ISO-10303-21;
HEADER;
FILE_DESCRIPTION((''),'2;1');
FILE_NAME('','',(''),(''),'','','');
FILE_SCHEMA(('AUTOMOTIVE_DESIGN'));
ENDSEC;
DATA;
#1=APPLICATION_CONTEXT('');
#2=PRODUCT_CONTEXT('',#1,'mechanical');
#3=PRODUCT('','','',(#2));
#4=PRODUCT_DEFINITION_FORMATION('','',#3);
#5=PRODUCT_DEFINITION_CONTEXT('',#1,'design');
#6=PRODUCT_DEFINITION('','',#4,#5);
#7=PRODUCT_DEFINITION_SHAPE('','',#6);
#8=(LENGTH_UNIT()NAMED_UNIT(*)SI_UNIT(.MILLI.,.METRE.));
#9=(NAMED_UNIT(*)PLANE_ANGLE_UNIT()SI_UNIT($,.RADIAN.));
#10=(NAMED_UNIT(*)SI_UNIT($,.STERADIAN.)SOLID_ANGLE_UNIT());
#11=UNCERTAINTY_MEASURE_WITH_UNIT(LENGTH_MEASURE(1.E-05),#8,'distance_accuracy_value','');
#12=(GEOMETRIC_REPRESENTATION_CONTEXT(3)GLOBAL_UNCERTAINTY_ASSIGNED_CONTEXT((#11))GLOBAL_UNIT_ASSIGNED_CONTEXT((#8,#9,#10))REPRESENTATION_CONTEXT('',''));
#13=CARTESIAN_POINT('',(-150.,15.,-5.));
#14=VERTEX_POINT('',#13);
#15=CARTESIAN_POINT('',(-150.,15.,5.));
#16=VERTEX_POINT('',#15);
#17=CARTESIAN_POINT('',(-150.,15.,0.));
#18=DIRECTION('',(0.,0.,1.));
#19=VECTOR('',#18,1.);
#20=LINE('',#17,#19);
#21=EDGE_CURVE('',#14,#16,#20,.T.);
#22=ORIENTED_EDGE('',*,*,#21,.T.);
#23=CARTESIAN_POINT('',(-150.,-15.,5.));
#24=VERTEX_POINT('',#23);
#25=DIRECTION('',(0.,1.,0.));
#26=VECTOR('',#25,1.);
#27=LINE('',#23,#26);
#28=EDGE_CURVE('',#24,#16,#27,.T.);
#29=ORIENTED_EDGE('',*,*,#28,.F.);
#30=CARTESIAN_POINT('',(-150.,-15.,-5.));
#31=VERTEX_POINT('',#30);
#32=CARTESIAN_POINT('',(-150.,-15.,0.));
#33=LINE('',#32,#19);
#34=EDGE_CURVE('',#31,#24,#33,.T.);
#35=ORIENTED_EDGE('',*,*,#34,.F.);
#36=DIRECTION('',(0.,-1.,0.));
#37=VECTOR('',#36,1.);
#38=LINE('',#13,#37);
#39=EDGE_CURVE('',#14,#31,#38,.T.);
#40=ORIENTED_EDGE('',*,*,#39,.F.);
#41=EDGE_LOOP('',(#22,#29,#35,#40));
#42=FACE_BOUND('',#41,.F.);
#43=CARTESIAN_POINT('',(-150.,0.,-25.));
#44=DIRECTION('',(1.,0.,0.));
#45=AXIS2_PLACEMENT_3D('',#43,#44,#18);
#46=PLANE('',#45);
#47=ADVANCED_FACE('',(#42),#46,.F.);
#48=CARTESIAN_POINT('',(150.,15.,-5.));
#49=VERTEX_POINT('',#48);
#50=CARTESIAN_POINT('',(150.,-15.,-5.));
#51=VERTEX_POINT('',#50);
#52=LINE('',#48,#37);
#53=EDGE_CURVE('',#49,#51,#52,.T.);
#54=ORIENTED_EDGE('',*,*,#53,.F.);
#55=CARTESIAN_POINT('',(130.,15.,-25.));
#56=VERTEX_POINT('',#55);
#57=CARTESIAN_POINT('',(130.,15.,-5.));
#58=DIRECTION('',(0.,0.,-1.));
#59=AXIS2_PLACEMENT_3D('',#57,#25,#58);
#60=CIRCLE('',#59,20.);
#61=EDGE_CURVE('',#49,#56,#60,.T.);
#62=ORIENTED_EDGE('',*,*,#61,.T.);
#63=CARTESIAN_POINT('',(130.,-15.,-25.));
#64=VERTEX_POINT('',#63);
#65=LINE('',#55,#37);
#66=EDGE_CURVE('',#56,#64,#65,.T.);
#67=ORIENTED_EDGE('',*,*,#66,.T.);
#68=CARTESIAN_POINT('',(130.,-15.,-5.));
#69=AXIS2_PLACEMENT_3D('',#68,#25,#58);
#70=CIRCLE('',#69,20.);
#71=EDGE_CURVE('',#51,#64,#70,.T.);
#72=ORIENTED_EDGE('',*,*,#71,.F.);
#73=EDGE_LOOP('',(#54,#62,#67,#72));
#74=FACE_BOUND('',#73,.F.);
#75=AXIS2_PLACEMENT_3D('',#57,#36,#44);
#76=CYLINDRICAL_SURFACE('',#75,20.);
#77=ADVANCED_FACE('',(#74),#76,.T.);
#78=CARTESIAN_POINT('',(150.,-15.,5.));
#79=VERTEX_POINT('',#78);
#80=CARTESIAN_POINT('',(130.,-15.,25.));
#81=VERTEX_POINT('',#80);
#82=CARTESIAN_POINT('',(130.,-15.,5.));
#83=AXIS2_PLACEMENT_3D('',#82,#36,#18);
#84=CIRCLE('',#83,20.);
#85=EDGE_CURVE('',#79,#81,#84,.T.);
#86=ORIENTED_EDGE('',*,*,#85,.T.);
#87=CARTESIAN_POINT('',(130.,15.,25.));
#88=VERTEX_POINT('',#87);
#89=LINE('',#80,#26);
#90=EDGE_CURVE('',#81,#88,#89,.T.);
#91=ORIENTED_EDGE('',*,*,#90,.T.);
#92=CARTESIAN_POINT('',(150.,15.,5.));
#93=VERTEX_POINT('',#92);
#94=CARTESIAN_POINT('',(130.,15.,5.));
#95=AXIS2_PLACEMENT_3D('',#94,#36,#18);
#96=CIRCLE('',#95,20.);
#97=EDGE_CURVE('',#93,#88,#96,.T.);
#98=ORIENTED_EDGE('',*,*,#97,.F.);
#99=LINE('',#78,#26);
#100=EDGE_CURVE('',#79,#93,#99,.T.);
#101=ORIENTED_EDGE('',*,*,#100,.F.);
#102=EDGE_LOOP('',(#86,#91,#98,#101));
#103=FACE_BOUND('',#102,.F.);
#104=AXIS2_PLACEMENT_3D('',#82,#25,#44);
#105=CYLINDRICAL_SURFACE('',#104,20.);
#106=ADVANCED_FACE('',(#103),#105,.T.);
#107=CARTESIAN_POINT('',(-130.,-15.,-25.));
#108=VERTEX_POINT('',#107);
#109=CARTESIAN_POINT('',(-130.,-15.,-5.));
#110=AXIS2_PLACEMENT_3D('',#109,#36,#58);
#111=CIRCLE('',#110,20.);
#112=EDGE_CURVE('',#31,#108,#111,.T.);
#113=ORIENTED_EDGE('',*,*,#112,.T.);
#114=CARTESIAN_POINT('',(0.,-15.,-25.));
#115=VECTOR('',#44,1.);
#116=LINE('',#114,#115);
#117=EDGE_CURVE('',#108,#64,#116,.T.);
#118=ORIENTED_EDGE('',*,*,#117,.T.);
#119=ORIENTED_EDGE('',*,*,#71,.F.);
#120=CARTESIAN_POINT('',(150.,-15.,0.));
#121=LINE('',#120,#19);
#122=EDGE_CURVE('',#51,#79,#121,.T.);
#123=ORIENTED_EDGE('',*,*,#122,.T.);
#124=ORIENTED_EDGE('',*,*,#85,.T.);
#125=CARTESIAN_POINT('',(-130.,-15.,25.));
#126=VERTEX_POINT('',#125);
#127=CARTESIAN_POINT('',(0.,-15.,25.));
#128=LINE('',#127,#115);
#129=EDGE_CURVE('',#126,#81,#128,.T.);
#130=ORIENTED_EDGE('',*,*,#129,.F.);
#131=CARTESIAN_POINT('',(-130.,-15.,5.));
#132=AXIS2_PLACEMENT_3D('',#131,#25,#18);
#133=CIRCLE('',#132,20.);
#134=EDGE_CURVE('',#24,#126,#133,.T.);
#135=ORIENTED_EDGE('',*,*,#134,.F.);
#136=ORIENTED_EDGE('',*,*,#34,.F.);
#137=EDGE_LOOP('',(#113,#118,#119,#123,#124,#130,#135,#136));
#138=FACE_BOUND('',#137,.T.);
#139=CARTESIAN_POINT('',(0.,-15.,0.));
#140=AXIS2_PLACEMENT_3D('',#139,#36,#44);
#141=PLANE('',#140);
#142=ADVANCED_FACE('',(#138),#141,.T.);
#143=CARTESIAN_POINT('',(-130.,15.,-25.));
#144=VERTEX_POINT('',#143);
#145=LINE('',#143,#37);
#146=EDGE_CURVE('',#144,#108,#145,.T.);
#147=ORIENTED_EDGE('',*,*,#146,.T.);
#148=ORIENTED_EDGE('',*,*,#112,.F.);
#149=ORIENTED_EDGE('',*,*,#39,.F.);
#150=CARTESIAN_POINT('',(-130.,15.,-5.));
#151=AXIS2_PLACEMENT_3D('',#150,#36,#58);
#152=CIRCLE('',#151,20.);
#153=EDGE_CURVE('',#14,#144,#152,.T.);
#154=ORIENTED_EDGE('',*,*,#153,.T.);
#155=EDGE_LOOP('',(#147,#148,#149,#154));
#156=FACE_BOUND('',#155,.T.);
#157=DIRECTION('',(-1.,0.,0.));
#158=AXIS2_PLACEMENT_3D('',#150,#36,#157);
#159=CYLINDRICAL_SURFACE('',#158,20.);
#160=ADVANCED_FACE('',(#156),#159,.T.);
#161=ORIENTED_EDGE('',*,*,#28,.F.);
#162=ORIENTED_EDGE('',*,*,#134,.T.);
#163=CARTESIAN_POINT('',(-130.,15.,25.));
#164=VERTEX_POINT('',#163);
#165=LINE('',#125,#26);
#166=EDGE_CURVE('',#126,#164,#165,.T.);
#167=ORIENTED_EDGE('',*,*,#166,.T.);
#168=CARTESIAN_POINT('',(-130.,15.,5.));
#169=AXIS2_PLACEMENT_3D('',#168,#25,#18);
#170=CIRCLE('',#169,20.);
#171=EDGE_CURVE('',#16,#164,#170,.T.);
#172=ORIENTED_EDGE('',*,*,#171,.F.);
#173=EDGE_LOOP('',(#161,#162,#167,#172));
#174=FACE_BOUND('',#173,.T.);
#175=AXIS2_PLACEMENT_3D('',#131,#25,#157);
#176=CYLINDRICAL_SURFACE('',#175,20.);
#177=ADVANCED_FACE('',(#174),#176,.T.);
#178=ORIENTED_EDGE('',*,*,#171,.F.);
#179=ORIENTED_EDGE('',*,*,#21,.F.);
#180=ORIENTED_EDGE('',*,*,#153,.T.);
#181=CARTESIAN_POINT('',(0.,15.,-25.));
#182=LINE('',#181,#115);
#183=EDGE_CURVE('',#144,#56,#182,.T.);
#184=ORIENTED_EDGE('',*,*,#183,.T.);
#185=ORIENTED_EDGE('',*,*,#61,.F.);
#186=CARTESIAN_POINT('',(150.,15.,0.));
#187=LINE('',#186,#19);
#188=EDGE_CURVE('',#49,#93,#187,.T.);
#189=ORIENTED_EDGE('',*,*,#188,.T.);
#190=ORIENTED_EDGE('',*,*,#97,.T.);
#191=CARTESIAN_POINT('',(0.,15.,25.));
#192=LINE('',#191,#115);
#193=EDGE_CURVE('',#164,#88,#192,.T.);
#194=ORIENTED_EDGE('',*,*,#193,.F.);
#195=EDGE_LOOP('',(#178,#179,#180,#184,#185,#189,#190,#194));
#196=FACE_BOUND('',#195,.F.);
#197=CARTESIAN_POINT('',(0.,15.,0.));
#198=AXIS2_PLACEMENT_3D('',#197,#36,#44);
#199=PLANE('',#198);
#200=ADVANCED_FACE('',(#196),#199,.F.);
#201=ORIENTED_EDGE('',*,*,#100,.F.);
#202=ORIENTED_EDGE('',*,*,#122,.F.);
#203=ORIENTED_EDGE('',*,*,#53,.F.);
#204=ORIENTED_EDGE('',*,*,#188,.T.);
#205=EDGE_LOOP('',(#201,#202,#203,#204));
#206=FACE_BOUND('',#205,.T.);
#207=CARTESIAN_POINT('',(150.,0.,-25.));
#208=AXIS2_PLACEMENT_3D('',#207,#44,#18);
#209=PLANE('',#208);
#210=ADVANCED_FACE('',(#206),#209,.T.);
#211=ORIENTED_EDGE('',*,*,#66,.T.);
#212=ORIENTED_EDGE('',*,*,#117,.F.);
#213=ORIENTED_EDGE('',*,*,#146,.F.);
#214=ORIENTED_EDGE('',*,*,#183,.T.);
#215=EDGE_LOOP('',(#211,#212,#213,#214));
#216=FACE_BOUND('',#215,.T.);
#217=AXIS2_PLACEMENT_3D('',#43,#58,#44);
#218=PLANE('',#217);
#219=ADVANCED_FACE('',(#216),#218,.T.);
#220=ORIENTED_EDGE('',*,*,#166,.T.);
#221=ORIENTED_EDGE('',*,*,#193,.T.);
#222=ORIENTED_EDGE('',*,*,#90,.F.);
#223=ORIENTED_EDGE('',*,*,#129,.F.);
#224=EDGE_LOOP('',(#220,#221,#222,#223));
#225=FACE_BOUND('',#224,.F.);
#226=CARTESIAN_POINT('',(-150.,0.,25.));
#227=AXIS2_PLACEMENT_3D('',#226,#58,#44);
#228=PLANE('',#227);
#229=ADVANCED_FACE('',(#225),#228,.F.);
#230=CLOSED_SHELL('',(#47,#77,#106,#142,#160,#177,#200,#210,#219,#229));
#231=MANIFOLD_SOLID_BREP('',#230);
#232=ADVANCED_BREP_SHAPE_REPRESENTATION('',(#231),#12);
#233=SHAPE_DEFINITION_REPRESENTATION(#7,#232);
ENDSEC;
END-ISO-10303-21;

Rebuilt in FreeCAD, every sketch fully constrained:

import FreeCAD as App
import Part
import Sketcher


def edges_at(feature, points):
    """Names of the edges that pass closest to the given points."""
    edges = feature.Shape.Edges
    near = lambda p: min(range(len(edges)), key=lambda i: edges[i].distToShape(Part.Vertex(*p))[0])
    return sorted({f"Edge{near(p) + 1}" for p in points})

doc = App.newDocument("Part")
body = doc.addObject("PartDesign::Body", "Body")

sketch1 = body.newObject("Sketcher::SketchObject", "Sketch")
sketch1.AttachmentSupport = (doc.getObject("XZ_Plane"), [""])
sketch1.MapMode = "FlatFace"
sketch1.addGeometry(Part.LineSegment(App.Vector(-150, 25, 0), App.Vector(-150, -25, 0)), False)
sketch1.addGeometry(Part.LineSegment(App.Vector(-150, -25, 0), App.Vector(150, -25, 0)), False)
sketch1.addGeometry(Part.LineSegment(App.Vector(150, -25, 0), App.Vector(150, 25, 0)), False)
sketch1.addGeometry(Part.LineSegment(App.Vector(150, 25, 0), App.Vector(-150, 25, 0)), False)
sketch1.addConstraint(Sketcher.Constraint("Coincident", 0, 2, 1, 1))
sketch1.addConstraint(Sketcher.Constraint("Coincident", 1, 2, 2, 1))
sketch1.addConstraint(Sketcher.Constraint("Coincident", 2, 2, 3, 1))
sketch1.addConstraint(Sketcher.Constraint("Coincident", 3, 2, 0, 1))
sketch1.addConstraint(Sketcher.Constraint("Vertical", 0))
sketch1.addConstraint(Sketcher.Constraint("Horizontal", 1))
sketch1.addConstraint(Sketcher.Constraint("Vertical", 2))
sketch1.addConstraint(Sketcher.Constraint("Horizontal", 3))
sketch1.addConstraint(Sketcher.Constraint("Symmetric", 0, 2, 2, 2, -1, 1))
sketch1.addConstraint(Sketcher.Constraint("DistanceX", 1, 1, 1, 2, 300.0))
sketch1.addConstraint(Sketcher.Constraint("DistanceY", 0, 2, 0, 1, 50.0))
pad1 = body.newObject("PartDesign::Pad", "Pad")
pad1.Profile = sketch1
pad1.Type = "TwoLengths"
pad1.Length = 15
pad1.Length2 = 15
doc.recompute()

fillet = body.newObject("PartDesign::Fillet", "Fillet")
fillet.Base = (pad1, edges_at(pad1, [
    (150, 0, 25),
    (150, 0, -25),
    (-150, 0, 25),
    (-150, 0, -25),
]))
fillet.Radius = 20

doc.recompute()
